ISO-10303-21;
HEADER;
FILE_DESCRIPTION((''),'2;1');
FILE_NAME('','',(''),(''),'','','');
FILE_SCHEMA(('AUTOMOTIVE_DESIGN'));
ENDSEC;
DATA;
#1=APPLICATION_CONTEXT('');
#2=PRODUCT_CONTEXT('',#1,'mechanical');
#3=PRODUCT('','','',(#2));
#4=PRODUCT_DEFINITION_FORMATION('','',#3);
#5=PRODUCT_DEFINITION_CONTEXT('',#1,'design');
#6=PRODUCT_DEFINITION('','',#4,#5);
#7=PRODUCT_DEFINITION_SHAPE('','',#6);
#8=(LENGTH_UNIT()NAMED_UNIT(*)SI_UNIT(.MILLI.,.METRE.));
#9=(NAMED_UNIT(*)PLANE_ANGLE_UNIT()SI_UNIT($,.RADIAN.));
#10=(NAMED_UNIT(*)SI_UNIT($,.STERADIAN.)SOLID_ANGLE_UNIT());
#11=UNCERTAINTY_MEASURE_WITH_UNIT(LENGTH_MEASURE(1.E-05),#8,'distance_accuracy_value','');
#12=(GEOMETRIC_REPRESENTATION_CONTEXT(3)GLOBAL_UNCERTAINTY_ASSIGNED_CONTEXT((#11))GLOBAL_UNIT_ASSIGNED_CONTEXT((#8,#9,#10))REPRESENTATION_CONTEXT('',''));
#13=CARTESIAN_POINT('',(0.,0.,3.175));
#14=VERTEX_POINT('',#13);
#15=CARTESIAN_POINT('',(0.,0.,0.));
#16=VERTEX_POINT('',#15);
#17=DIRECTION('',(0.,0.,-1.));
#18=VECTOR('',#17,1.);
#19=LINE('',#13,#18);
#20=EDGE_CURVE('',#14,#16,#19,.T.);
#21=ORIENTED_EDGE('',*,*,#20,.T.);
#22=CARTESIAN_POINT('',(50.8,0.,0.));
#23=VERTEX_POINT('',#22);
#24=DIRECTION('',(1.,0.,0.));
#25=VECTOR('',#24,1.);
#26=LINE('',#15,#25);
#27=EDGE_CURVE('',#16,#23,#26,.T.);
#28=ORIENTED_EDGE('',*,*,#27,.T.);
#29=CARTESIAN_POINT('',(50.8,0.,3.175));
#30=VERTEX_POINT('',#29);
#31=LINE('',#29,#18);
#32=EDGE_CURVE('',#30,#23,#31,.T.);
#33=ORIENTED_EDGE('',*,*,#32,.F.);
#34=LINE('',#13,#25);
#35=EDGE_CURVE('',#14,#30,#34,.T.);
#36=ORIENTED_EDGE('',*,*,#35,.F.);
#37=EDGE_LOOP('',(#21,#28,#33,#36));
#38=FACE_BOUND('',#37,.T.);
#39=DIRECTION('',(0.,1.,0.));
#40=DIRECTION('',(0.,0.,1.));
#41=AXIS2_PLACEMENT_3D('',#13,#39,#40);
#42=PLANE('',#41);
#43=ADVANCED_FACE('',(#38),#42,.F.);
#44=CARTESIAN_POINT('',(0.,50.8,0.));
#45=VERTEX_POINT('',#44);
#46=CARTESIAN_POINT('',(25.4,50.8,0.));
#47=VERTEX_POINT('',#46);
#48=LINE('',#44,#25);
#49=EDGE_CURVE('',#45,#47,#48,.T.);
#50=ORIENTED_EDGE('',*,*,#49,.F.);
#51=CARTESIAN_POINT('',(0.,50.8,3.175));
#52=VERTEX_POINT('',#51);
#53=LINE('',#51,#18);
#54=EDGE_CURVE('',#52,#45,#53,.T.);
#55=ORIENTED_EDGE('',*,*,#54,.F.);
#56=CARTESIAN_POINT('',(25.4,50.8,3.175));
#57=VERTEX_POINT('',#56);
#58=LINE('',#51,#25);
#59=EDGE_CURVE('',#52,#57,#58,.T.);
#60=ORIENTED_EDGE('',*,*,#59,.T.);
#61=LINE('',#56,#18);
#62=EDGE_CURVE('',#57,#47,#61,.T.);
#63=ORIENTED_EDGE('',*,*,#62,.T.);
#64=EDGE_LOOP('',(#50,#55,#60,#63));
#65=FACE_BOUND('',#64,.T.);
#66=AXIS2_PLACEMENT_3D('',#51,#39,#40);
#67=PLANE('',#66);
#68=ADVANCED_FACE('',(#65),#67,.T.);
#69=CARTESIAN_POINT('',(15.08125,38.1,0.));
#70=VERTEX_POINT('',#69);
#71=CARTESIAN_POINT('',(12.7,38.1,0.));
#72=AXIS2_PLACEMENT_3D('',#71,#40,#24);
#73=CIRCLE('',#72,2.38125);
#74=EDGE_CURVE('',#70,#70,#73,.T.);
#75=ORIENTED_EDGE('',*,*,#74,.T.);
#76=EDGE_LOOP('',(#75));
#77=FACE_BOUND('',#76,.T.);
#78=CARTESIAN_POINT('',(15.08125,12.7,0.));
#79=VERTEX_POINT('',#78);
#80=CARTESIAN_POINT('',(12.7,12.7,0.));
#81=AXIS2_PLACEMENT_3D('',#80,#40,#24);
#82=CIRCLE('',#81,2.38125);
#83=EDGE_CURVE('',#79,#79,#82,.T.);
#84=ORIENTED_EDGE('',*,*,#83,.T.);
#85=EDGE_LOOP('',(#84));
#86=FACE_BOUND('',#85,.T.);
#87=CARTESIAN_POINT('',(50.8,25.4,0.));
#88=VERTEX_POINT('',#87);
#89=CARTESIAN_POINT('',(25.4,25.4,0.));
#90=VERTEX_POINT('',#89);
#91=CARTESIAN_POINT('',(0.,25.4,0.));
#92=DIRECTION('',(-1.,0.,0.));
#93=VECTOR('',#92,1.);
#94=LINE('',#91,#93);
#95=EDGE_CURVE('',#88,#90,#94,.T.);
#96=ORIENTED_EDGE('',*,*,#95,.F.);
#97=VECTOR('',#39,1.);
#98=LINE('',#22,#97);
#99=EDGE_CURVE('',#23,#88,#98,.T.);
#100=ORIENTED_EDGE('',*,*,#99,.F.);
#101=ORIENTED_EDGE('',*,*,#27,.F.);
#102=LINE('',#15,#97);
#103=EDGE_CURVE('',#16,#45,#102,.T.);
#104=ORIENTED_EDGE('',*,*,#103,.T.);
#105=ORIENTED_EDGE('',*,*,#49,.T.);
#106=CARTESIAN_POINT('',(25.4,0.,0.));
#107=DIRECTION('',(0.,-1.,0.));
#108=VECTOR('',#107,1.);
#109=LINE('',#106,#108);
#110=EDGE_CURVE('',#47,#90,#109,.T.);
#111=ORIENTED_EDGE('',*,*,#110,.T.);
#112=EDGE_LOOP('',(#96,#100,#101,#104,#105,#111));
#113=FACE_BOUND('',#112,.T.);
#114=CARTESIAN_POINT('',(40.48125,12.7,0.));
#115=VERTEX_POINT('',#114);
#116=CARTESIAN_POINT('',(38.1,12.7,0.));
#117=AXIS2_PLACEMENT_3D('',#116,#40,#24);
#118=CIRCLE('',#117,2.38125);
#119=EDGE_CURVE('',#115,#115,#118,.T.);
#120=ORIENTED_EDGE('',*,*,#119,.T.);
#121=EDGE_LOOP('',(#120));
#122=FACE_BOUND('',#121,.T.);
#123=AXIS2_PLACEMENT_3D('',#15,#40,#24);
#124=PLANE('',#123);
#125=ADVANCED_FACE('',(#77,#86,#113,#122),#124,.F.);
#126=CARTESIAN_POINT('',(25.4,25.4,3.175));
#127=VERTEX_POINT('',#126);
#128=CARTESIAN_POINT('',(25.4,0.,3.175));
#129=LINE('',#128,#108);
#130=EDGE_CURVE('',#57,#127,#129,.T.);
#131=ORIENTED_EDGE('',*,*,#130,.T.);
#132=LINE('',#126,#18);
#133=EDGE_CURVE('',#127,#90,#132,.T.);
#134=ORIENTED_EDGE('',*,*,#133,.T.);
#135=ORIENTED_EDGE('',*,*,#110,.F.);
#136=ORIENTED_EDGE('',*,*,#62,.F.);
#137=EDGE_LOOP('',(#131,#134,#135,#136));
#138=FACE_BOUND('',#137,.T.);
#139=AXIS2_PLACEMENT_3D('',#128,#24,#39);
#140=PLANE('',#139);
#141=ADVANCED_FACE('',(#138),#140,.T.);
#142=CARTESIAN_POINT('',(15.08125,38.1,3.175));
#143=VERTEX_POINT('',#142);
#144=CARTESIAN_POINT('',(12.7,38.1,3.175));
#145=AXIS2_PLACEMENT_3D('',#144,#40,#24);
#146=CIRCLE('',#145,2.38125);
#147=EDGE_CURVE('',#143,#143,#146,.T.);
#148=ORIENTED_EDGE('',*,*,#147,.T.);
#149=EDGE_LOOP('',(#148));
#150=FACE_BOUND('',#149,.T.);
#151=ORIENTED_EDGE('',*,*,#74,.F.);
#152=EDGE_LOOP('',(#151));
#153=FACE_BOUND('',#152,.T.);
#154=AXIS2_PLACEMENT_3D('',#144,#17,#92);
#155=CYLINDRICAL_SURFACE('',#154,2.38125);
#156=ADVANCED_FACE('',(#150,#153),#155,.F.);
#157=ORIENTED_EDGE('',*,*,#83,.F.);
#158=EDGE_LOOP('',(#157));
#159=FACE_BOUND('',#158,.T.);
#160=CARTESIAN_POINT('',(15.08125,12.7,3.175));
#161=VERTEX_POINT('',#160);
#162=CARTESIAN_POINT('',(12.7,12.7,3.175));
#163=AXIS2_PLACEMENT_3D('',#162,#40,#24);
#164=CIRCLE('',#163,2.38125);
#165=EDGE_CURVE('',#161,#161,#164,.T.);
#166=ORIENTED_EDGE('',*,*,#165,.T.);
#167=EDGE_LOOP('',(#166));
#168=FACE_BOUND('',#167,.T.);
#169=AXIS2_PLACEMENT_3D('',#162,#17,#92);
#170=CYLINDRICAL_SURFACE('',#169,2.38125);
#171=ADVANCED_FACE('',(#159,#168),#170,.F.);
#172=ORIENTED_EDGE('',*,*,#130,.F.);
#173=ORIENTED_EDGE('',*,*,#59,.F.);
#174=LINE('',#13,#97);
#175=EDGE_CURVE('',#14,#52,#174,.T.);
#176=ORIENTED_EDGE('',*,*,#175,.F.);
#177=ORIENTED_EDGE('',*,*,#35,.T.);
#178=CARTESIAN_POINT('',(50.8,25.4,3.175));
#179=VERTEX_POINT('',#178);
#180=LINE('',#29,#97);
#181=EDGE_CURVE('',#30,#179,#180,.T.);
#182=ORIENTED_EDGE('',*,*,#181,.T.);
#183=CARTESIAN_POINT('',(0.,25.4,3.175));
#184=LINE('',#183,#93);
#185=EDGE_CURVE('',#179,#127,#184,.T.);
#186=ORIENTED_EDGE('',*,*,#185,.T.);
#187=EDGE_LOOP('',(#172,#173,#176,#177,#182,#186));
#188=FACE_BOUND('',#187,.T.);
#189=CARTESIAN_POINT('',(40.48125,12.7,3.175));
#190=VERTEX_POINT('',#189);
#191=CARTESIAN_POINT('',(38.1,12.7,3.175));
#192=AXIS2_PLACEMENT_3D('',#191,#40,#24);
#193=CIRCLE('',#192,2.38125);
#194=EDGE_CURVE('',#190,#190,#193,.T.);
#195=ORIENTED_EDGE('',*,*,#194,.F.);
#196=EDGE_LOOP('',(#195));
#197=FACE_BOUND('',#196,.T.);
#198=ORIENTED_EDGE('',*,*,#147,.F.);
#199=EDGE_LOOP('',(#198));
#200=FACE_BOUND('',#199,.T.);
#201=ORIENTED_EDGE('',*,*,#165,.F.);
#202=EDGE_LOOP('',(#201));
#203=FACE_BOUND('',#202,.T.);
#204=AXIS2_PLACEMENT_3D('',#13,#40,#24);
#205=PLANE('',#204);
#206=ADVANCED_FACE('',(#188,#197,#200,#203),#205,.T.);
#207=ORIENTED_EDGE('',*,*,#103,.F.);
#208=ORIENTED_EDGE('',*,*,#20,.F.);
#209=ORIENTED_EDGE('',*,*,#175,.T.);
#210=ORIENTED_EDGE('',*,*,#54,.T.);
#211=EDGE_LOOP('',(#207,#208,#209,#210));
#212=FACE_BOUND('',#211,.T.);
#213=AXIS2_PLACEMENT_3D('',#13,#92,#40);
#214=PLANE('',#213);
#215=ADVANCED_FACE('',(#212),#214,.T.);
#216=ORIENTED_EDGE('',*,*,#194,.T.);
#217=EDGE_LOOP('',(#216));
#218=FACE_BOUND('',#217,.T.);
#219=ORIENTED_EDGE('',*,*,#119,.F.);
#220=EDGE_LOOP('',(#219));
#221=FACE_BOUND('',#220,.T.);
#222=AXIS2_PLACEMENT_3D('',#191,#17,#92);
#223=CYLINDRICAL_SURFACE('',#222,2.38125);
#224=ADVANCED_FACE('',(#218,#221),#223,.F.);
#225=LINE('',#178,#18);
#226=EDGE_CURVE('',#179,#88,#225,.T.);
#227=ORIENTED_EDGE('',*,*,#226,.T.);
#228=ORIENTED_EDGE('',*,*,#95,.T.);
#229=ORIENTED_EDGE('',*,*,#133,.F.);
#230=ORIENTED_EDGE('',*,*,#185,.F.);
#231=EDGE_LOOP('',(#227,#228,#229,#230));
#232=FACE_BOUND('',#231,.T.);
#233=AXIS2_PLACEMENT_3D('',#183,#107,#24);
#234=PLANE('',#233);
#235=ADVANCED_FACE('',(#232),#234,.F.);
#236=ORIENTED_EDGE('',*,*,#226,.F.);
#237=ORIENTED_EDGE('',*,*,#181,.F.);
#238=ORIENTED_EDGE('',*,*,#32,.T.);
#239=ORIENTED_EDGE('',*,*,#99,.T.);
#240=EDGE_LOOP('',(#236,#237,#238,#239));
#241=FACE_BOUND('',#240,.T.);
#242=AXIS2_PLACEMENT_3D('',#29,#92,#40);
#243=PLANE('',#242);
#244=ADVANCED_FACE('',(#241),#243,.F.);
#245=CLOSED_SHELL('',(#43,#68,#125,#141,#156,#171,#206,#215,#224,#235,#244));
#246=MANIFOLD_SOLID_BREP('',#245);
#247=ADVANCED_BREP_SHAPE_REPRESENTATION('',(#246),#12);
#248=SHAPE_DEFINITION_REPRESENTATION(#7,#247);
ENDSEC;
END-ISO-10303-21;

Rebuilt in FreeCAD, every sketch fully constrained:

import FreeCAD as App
import Part
import Sketcher
Q = App.Units.Quantity


def add_polygon(sketch, points):
    """Adds a closed chain of lines whose ends are joined by coincident constraints."""
    first, n = sketch.GeometryCount, len(points)
    for a, b in zip(points, points[1:] + points[:1]):
        sketch.addGeometry(Part.LineSegment(App.Vector(*a, 0), App.Vector(*b, 0)), False)
    for i in range(n):
        sketch.addConstraint(Sketcher.Constraint("Coincident", first + i, 2, first + (i + 1) % n, 1))

doc = App.newDocument("Part")
params = doc.addObject("Spreadsheet::Sheet", "Params")
for row, (alias, value) in enumerate([
    ("sketch1_width", "2 in"),
    ("sketch1_diameter", "0.1875 in"),
    ("pad1_length", "0.125 in"),
], start=1):
    params.set(f"A{row}", alias)
    params.set(f"B{row}", "=" + value)
    params.setAlias(f"B{row}", alias)

body = doc.addObject("PartDesign::Body", "Body")

# Sketch on XY plane
sketch1 = body.newObject("Sketcher::SketchObject", "Sketch")
sketch1.AttachmentSupport = (doc.getObject("XY_Plane"), [""])
sketch1.MapMode = "FlatFace"
add_polygon(sketch1, [(0, 50.8), (0, 0), (50.8, 0), (50.8, 25.4), (25.4, 25.4), (25.4, 50.8)])  # lines 0-5
sketch1.addGeometry(Part.Circle(App.Vector(12.7, 12.7, 0), App.Vector(0, 0, 1), 2.4), False)  # 6
sketch1.addGeometry(Part.Circle(App.Vector(38.1, 12.7, 0), App.Vector(0, 0, 1), 2.4), False)  # 7
sketch1.addGeometry(Part.Circle(App.Vector(12.7, 38.1, 0), App.Vector(0, 0, 1), 2.4), False)  # 8
sketch1.addConstraint([
    Sketcher.Constraint("Vertical", 0),
    Sketcher.Constraint("Horizontal", 1),
    Sketcher.Constraint("Vertical", 2),
    Sketcher.Constraint("Horizontal", 3),
    Sketcher.Constraint("Vertical", 4),
    Sketcher.Constraint("Horizontal", 5),
    Sketcher.Constraint("Coincident", 0, 2, -1, 1),
    Sketcher.Constraint("Equal", 6, 7),
    Sketcher.Constraint("Equal", 7, 8),
    Sketcher.Constraint("Horizontal", 6, 3, 7, 3),
    Sketcher.Constraint("Vertical", 6, 3, 8, 3),
    Sketcher.Constraint("Equal", 3, 5),
    Sketcher.Constraint("Equal", 1, 0),
    Sketcher.Constraint("Equal", 5, 2),
    Sketcher.Constraint("DistanceX", 1, 1, 1, 2, Q("2 in")),
    Sketcher.Constraint("Diameter", 6, Q("0.1875 in")),
    Sketcher.Constraint("DistanceX", 6, 3, 7, 3, Q("1 in")),
    Sketcher.Constraint("DistanceY", 6, 3, 8, 3, Q("1 in")),
    Sketcher.Constraint("DistanceX", -1, 1, 6, 3, Q("0.5 in")),
    Sketcher.Constraint("DistanceY", -1, 1, 6, 3, Q("0.5 in")),
])
sketch1.setExpression("Constraints[20]", "Params.sketch1_width")
sketch1.setExpression("Constraints[21]", "Params.sketch1_diameter")
pad1 = body.newObject("PartDesign::Pad", "Pad")
pad1.Profile = sketch1
pad1.setExpression("Length", "Params.pad1_length")

doc.recompute()
